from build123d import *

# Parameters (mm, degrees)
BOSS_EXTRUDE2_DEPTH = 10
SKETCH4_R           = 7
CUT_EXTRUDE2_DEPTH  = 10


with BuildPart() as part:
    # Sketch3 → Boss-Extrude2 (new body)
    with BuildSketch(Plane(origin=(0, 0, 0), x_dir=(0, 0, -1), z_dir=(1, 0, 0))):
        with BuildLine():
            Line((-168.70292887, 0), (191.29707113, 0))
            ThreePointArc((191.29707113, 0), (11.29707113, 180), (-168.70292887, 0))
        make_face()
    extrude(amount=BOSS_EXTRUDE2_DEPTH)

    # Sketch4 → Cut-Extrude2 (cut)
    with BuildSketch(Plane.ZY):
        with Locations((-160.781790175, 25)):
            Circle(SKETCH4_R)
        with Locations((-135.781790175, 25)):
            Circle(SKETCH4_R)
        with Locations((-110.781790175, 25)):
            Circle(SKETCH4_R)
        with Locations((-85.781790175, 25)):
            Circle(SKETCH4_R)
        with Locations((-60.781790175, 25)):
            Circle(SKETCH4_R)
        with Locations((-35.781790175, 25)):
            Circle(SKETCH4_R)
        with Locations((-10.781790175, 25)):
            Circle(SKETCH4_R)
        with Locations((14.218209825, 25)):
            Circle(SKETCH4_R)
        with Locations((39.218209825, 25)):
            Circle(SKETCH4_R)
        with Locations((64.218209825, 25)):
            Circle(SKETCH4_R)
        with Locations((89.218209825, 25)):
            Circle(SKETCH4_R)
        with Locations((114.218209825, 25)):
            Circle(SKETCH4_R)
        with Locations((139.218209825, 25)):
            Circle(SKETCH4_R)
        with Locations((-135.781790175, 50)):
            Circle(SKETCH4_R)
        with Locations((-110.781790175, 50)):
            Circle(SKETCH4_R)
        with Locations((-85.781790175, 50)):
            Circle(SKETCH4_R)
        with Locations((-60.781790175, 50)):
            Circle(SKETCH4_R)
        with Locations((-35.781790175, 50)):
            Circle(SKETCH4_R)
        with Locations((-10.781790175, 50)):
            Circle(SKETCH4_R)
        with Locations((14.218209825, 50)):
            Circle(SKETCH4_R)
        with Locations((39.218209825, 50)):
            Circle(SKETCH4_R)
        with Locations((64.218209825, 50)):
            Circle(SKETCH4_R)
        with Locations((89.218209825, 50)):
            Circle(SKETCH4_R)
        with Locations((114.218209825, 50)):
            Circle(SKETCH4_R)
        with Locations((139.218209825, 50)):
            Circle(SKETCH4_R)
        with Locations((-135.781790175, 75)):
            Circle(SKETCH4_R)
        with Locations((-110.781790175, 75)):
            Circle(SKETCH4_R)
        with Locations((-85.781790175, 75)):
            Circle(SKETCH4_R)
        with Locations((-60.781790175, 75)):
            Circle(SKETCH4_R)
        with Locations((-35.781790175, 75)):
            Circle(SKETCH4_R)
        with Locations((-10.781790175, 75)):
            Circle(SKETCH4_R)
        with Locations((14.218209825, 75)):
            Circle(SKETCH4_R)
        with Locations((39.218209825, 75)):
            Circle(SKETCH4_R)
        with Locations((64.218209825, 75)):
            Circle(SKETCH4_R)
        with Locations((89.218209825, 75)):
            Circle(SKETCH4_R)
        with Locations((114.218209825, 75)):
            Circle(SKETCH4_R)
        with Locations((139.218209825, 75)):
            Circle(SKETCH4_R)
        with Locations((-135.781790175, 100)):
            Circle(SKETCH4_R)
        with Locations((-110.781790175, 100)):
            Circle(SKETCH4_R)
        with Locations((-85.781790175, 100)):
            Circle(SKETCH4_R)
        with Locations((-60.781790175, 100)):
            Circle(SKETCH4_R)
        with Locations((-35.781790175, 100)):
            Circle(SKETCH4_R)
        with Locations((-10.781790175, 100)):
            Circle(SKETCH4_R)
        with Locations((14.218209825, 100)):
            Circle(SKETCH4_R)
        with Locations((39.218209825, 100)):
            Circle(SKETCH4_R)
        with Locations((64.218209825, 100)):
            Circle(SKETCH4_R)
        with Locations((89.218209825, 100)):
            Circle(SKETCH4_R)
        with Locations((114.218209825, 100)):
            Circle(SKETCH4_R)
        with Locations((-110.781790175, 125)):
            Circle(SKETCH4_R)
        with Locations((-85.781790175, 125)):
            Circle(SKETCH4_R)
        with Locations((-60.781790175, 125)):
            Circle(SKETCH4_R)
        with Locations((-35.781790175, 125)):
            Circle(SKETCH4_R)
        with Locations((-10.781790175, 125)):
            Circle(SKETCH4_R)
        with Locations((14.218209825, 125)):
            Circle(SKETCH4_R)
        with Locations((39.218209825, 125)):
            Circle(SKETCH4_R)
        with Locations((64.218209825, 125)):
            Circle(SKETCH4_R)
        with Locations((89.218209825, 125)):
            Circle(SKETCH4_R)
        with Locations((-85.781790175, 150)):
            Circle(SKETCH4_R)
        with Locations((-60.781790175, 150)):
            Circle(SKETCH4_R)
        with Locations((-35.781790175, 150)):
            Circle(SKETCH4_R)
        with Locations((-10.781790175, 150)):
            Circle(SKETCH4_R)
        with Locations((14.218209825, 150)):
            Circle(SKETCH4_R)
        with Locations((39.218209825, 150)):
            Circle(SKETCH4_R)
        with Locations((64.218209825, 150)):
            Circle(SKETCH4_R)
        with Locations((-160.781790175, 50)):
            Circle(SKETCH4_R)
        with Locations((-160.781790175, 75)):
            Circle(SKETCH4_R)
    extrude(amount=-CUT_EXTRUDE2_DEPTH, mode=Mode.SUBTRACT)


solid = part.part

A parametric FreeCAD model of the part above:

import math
import FreeCAD as App
import Part
import Sketcher
from FreeCAD import Vector

doc = App.newDocument("Part")
params = doc.addObject("Spreadsheet::Sheet", "Params")
for row, (alias, value) in enumerate([
    ("sketch1_radius", "180 mm"),
    ("pad1_length", "10 mm"),
    ("sketch2_diameter", "14 mm"),
    ("pocket1_length", "10 mm"),
], start=1):
    params.set(f"A{row}", alias)
    params.set(f"B{row}", "=" + value)
    params.setAlias(f"B{row}", alias)

body = doc.addObject("PartDesign::Body", "Body")

sketch1 = doc.addObject("Sketcher::SketchObject", "Sketch")
body.addObject(sketch1)
sketch1.AttachmentSupport = (doc.YZ_Plane, [""])
sketch1.MapMode = "FlatFace"
sketch1.addGeometry(Part.LineSegment(Vector(0, 169, 0), Vector(0, -191, 0)), False)
sketch1.addGeometry(Part.ArcOfCircle(Part.Circle(Vector(0, -11, 0), Vector(0, 0, 1), 180), math.radians(-90), math.radians(90)), False)
sketch1.addConstraint(Sketcher.Constraint("Coincident", 0, 1, 1, 2))
sketch1.addConstraint(Sketcher.Constraint("Coincident", 1, 1, 0, 2))
sketch1.addConstraint(Sketcher.Constraint("Vertical", 0))
sketch1.addConstraint(Sketcher.Constraint("PointOnObject", 1, 3, -2))
sketch1.addConstraint(Sketcher.Constraint("PointOnObject", 0, 1, -2))
sketch1.addConstraint(Sketcher.Constraint("Radius", 1, 180.0))
sketch1.addConstraint(Sketcher.Constraint("DistanceY", 1, 3, -1, 1, 11.297071))
sketch1.setExpression("Constraints[5]", "Params.sketch1_radius")
pad1 = doc.addObject("PartDesign::Pad", "Pad")
body.addObject(pad1)
pad1.Profile = sketch1
pad1.setExpression("Length", "Params.pad1_length")

sketch2 = doc.addObject("Sketcher::SketchObject", "Sketch001")
body.addObject(sketch2)
sketch2.AttachmentSupport = (doc.YZ_Plane, [""])
sketch2.MapMode = "FlatFace"
sketch2.addGeometry(Part.Circle(Vector(25, -161, 0), Vector(0, 0, 1), 7), False)
sketch2.addGeometry(Part.Circle(Vector(25, -136, 0), Vector(0, 0, 1), 7), False)
sketch2.addGeometry(Part.Circle(Vector(25, -111, 0), Vector(0, 0, 1), 7), False)
sketch2.addGeometry(Part.Circle(Vector(25, -86, 0), Vector(0, 0, 1), 7), False)
sketch2.addGeometry(Part.Circle(Vector(25, -61, 0), Vector(0, 0, 1), 7), False)
sketch2.addGeometry(Part.Circle(Vector(25, -36, 0), Vector(0, 0, 1), 7), False)
sketch2.addGeometry(Part.Circle(Vector(25, -11, 0), Vector(0, 0, 1), 7), False)
sketch2.addGeometry(Part.Circle(Vector(25, 14, 0), Vector(0, 0, 1), 7), False)
sketch2.addGeometry(Part.Circle(Vector(25, 39, 0), Vector(0, 0, 1), 7), False)
sketch2.addGeometry(Part.Circle(Vector(25, 64, 0), Vector(0, 0, 1), 7), False)
sketch2.addGeometry(Part.Circle(Vector(25, 89, 0), Vector(0, 0, 1), 7), False)
sketch2.addGeometry(Part.Circle(Vector(25, 114, 0), Vector(0, 0, 1), 7), False)
sketch2.addGeometry(Part.Circle(Vector(25, 139, 0), Vector(0, 0, 1), 7), False)
sketch2.addGeometry(Part.Circle(Vector(50, -136, 0), Vector(0, 0, 1), 7), False)
sketch2.addGeometry(Part.Circle(Vector(50, -111, 0), Vector(0, 0, 1), 7), False)
sketch2.addGeometry(Part.Circle(Vector(50, -86, 0), Vector(0, 0, 1), 7), False)
sketch2.addGeometry(Part.Circle(Vector(50, -61, 0), Vector(0, 0, 1), 7), False)
sketch2.addGeometry(Part.Circle(Vector(50, -36, 0), Vector(0, 0, 1), 7), False)
sketch2.addGeometry(Part.Circle(Vector(50, -11, 0), Vector(0, 0, 1), 7), False)
sketch2.addGeometry(Part.Circle(Vector(50, 14, 0), Vector(0, 0, 1), 7), False)
sketch2.addGeometry(Part.Circle(Vector(50, 39, 0), Vector(0, 0, 1), 7), False)
sketch2.addGeometry(Part.Circle(Vector(50, 64, 0), Vector(0, 0, 1), 7), False)
sketch2.addGeometry(Part.Circle(Vector(50, 89, 0), Vector(0, 0, 1), 7), False)
sketch2.addGeometry(Part.Circle(Vector(50, 114, 0), Vector(0, 0, 1), 7), False)
sketch2.addGeometry(Part.Circle(Vector(50, 139, 0), Vector(0, 0, 1), 7), False)
sketch2.addGeometry(Part.Circle(Vector(75, -136, 0), Vector(0, 0, 1), 7), False)
sketch2.addGeometry(Part.Circle(Vector(75, -111, 0), Vector(0, 0, 1), 7), False)
sketch2.addGeometry(Part.Circle(Vector(75, -86, 0), Vector(0, 0, 1), 7), False)
sketch2.addGeometry(Part.Circle(Vector(75, -61, 0), Vector(0, 0, 1), 7), False)
sketch2.addGeometry(Part.Circle(Vector(75, -36, 0), Vector(0, 0, 1), 7), False)
sketch2.addGeometry(Part.Circle(Vector(75, -11, 0), Vector(0, 0, 1), 7), False)
sketch2.addGeometry(Part.Circle(Vector(75, 14, 0), Vector(0, 0, 1), 7), False)
sketch2.addGeometry(Part.Circle(Vector(75, 39, 0), Vector(0, 0, 1), 7), False)
sketch2.addGeometry(Part.Circle(Vector(75, 64, 0), Vector(0, 0, 1), 7), False)
sketch2.addGeometry(Part.Circle(Vector(75, 89, 0), Vector(0, 0, 1), 7), False)
sketch2.addGeometry(Part.Circle(Vector(75, 114, 0), Vector(0, 0, 1), 7), False)
sketch2.addGeometry(Part.Circle(Vector(75, 139, 0), Vector(0, 0, 1), 7), False)
sketch2.addGeometry(Part.Circle(Vector(100, -136, 0), Vector(0, 0, 1), 7), False)
sketch2.addGeometry(Part.Circle(Vector(100, -111, 0), Vector(0, 0, 1), 7), False)
sketch2.addGeometry(Part.Circle(Vector(100, -86, 0), Vector(0, 0, 1), 7), False)
sketch2.addGeometry(Part.Circle(Vector(100, -61, 0), Vector(0, 0, 1), 7), False)
sketch2.addGeometry(Part.Circle(Vector(100, -36, 0), Vector(0, 0, 1), 7), False)
sketch2.addGeometry(Part.Circle(Vector(100, -11, 0), Vector(0, 0, 1), 7), False)
sketch2.addGeometry(Part.Circle(Vector(100, 14, 0), Vector(0, 0, 1), 7), False)
sketch2.addGeometry(Part.Circle(Vector(100, 39, 0), Vector(0, 0, 1), 7), False)
sketch2.addGeometry(Part.Circle(Vector(100, 64, 0), Vector(0, 0, 1), 7), False)
sketch2.addGeometry(Part.Circle(Vector(100, 89, 0), Vector(0, 0, 1), 7), False)
sketch2.addGeometry(Part.Circle(Vector(100, 114, 0), Vector(0, 0, 1), 7), False)
sketch2.addGeometry(Part.Circle(Vector(125, -111, 0), Vector(0, 0, 1), 7), False)
sketch2.addGeometry(Part.Circle(Vector(125, -86, 0), Vector(0, 0, 1), 7), False)
sketch2.addGeometry(Part.Circle(Vector(125, -61, 0), Vector(0, 0, 1), 7), False)
sketch2.addGeometry(Part.Circle(Vector(125, -36, 0), Vector(0, 0, 1), 7), False)
sketch2.addGeometry(Part.Circle(Vector(125, -11, 0), Vector(0, 0, 1), 7), False)
sketch2.addGeometry(Part.Circle(Vector(125, 14, 0), Vector(0, 0, 1), 7), False)
sketch2.addGeometry(Part.Circle(Vector(125, 39, 0), Vector(0, 0, 1), 7), False)
sketch2.addGeometry(Part.Circle(Vector(125, 64, 0), Vector(0, 0, 1), 7), False)
sketch2.addGeometry(Part.Circle(Vector(125, 89, 0), Vector(0, 0, 1), 7), False)
sketch2.addGeometry(Part.Circle(Vector(150, -86, 0), Vector(0, 0, 1), 7), False)
sketch2.addGeometry(Part.Circle(Vector(150, -61, 0), Vector(0, 0, 1), 7), False)
sketch2.addGeometry(Part.Circle(Vector(150, -36, 0), Vector(0, 0, 1), 7), False)
sketch2.addGeometry(Part.Circle(Vector(150, -11, 0), Vector(0, 0, 1), 7), False)
sketch2.addGeometry(Part.Circle(Vector(150, 14, 0), Vector(0, 0, 1), 7), False)
sketch2.addGeometry(Part.Circle(Vector(150, 39, 0), Vector(0, 0, 1), 7), False)
sketch2.addGeometry(Part.Circle(Vector(150, 64, 0), Vector(0, 0, 1), 7), False)
sketch2.addGeometry(Part.Circle(Vector(50, -161, 0), Vector(0, 0, 1), 7), False)
sketch2.addGeometry(Part.Circle(Vector(75, -161, 0), Vector(0, 0, 1), 7), False)
sketch2.addConstraint(Sketcher.Constraint("Equal", 0, 1))
sketch2.addConstraint(Sketcher.Constraint("Equal", 1, 2))
sketch2.addConstraint(Sketcher.Constraint("Equal", 2, 3))
sketch2.addConstraint(Sketcher.Constraint("Equal", 3, 4))
sketch2.addConstraint(Sketcher.Constraint("Equal", 4, 5))
sketch2.addConstraint(Sketcher.Constraint("Equal", 5, 6))
sketch2.addConstraint(Sketcher.Constraint("Equal", 6, 7))
sketch2.addConstraint(Sketcher.Constraint("Equal", 7, 8))
sketch2.addConstraint(Sketcher.Constraint("Equal", 8, 9))
sketch2.addConstraint(Sketcher.Constraint("Equal", 9, 10))
sketch2.addConstraint(Sketcher.Constraint("Equal", 10, 11))
sketch2.addConstraint(Sketcher.Constraint("Equal", 11, 12))
sketch2.addConstraint(Sketcher.Constraint("Equal", 12, 13))
sketch2.addConstraint(Sketcher.Constraint("Equal", 13, 14))
sketch2.addConstraint(Sketcher.Constraint("Equal", 14, 15))
sketch2.addConstraint(Sketcher.Constraint("Equal", 15, 16))
sketch2.addConstraint(Sketcher.Constraint("Equal", 16, 17))
sketch2.addConstraint(Sketcher.Constraint("Equal", 17, 18))
sketch2.addConstraint(Sketcher.Constraint("Equal", 18, 19))
sketch2.addConstraint(Sketcher.Constraint("Equal", 19, 20))
sketch2.addConstraint(Sketcher.Constraint("Equal", 20, 21))
sketch2.addConstraint(Sketcher.Constraint("Equal", 21, 22))
sketch2.addConstraint(Sketcher.Constraint("Equal", 22, 23))
sketch2.addConstraint(Sketcher.Constraint("Equal", 23, 24))
sketch2.addConstraint(Sketcher.Constraint("Equal", 24, 25))
sketch2.addConstraint(Sketcher.Constraint("Equal", 25, 26))
sketch2.addConstraint(Sketcher.Constraint("Equal", 26, 27))
sketch2.addConstraint(Sketcher.Constraint("Equal", 27, 28))
sketch2.addConstraint(Sketcher.Constraint("Equal", 28, 29))
sketch2.addConstraint(Sketcher.Constraint("Equal", 29, 30))
sketch2.addConstraint(Sketcher.Constraint("Equal", 30, 31))
sketch2.addConstraint(Sketcher.Constraint("Equal", 31, 32))
sketch2.addConstraint(Sketcher.Constraint("Equal", 32, 33))
sketch2.addConstraint(Sketcher.Constraint("Equal", 33, 34))
sketch2.addConstraint(Sketcher.Constraint("Equal", 34, 35))
sketch2.addConstraint(Sketcher.Constraint("Equal", 35, 36))
sketch2.addConstraint(Sketcher.Constraint("Equal", 36, 37))
sketch2.addConstraint(Sketcher.Constraint("Equal", 37, 38))
sketch2.addConstraint(Sketcher.Constraint("Equal", 38, 39))
sketch2.addConstraint(Sketcher.Constraint("Equal", 39, 40))
sketch2.addConstraint(Sketcher.Constraint("Equal", 40, 41))
sketch2.addConstraint(Sketcher.Constraint("Equal", 41, 42))
sketch2.addConstraint(Sketcher.Constraint("Equal", 42, 43))
sketch2.addConstraint(Sketcher.Constraint("Equal", 43, 44))
sketch2.addConstraint(Sketcher.Constraint("Equal", 44, 45))
sketch2.addConstraint(Sketcher.Constraint("Equal", 45, 46))
sketch2.addConstraint(Sketcher.Constraint("Equal", 46, 47))
sketch2.addConstraint(Sketcher.Constraint("Equal", 47, 48))
sketch2.addConstraint(Sketcher.Constraint("Equal", 48, 49))
sketch2.addConstraint(Sketcher.Constraint("Equal", 49, 50))
sketch2.addConstraint(Sketcher.Constraint("Equal", 50, 51))
sketch2.addConstraint(Sketcher.Constraint("Equal", 51, 52))
sketch2.addConstraint(Sketcher.Constraint("Equal", 52, 53))
sketch2.addConstraint(Sketcher.Constraint("Equal", 53, 54))
sketch2.addConstraint(Sketcher.Constraint("Equal", 54, 55))
sketch2.addConstraint(Sketcher.Constraint("Equal", 55, 56))
sketch2.addConstraint(Sketcher.Constraint("Equal", 56, 57))
sketch2.addConstraint(Sketcher.Constraint("Equal", 57, 58))
sketch2.addConstraint(Sketcher.Constraint("Equal", 58, 59))
sketch2.addConstraint(Sketcher.Constraint("Equal", 59, 60))
sketch2.addConstraint(Sketcher.Constraint("Equal", 60, 61))
sketch2.addConstraint(Sketcher.Constraint("Equal", 61, 62))
sketch2.addConstraint(Sketcher.Constraint("Equal", 62, 63))
sketch2.addConstraint(Sketcher.Constraint("Equal", 63, 64))
sketch2.addConstraint(Sketcher.Constraint("Equal", 64, 65))
sketch2.addConstraint(Sketcher.Constraint("Horizontal", 1, 3, 13, 3))
sketch2.addConstraint(Sketcher.Constraint("Horizontal", 2, 3, 14, 3))
sketch2.addConstraint(Sketcher.Constraint("Horizontal", 3, 3, 15, 3))
sketch2.addConstraint(Sketcher.Constraint("Horizontal", 4, 3, 16, 3))
sketch2.addConstraint(Sketcher.Constraint("Horizontal", 5, 3, 17, 3))
sketch2.addConstraint(Sketcher.Constraint("Horizontal", 6, 3, 18, 3))
sketch2.addConstraint(Sketcher.Constraint("Horizontal", 7, 3, 19, 3))
sketch2.addConstraint(Sketcher.Constraint("Horizontal", 8, 3, 20, 3))
sketch2.addConstraint(Sketcher.Constraint("Horizontal", 9, 3, 21, 3))
sketch2.addConstraint(Sketcher.Constraint("Horizontal", 10, 3, 22, 3))
sketch2.addConstraint(Sketcher.Constraint("Horizontal", 11, 3, 23, 3))
sketch2.addConstraint(Sketcher.Constraint("Horizontal", 12, 3, 24, 3))
sketch2.addConstraint(Sketcher.Constraint("Horizontal", 13, 3, 25, 3))
sketch2.addConstraint(Sketcher.Constraint("Horizontal", 14, 3, 26, 3))
sketch2.addConstraint(Sketcher.Constraint("Horizontal", 15, 3, 27, 3))
sketch2.addConstraint(Sketcher.Constraint("Horizontal", 16, 3, 28, 3))
sketch2.addConstraint(Sketcher.Constraint("Horizontal", 17, 3, 29, 3))
sketch2.addConstraint(Sketcher.Constraint("Horizontal", 18, 3, 30, 3))
sketch2.addConstraint(Sketcher.Constraint("Horizontal", 19, 3, 31, 3))
sketch2.addConstraint(Sketcher.Constraint("Horizontal", 20, 3, 32, 3))
sketch2.addConstraint(Sketcher.Constraint("Horizontal", 21, 3, 33, 3))
sketch2.addConstraint(Sketcher.Constraint("Horizontal", 22, 3, 34, 3))
sketch2.addConstraint(Sketcher.Constraint("Horizontal", 23, 3, 35, 3))
sketch2.addConstraint(Sketcher.Constraint("Horizontal", 24, 3, 36, 3))
sketch2.addConstraint(Sketcher.Constraint("Horizontal", 25, 3, 37, 3))
sketch2.addConstraint(Sketcher.Constraint("Horizontal", 26, 3, 38, 3))
sketch2.addConstraint(Sketcher.Constraint("Horizontal", 27, 3, 39, 3))
sketch2.addConstraint(Sketcher.Constraint("Horizontal", 28, 3, 40, 3))
sketch2.addConstraint(Sketcher.Constraint("Horizontal", 29, 3, 41, 3))
sketch2.addConstraint(Sketcher.Constraint("Horizontal", 30, 3, 42, 3))
sketch2.addConstraint(Sketcher.Constraint("Horizontal", 31, 3, 43, 3))
sketch2.addConstraint(Sketcher.Constraint("Horizontal", 32, 3, 44, 3))
sketch2.addConstraint(Sketcher.Constraint("Horizontal", 33, 3, 45, 3))
sketch2.addConstraint(Sketcher.Constraint("Horizontal", 34, 3, 46, 3))
sketch2.addConstraint(Sketcher.Constraint("Horizontal", 35, 3, 47, 3))
sketch2.addConstraint(Sketcher.Constraint("Horizontal", 38, 3, 48, 3))
sketch2.addConstraint(Sketcher.Constraint("Horizontal", 39, 3, 49, 3))
sketch2.addConstraint(Sketcher.Constraint("Horizontal", 40, 3, 50, 3))
sketch2.addConstraint(Sketcher.Constraint("Horizontal", 41, 3, 51, 3))
sketch2.addConstraint(Sketcher.Constraint("Horizontal", 42, 3, 52, 3))
sketch2.addConstraint(Sketcher.Constraint("Horizontal", 43, 3, 53, 3))
sketch2.addConstraint(Sketcher.Constraint("Horizontal", 44, 3, 54, 3))
sketch2.addConstraint(Sketcher.Constraint("Horizontal", 45, 3, 55, 3))
sketch2.addConstraint(Sketcher.Constraint("Horizontal", 46, 3, 56, 3))
sketch2.addConstraint(Sketcher.Constraint("Horizontal", 49, 3, 57, 3))
sketch2.addConstraint(Sketcher.Constraint("Horizontal", 50, 3, 58, 3))
sketch2.addConstraint(Sketcher.Constraint("Horizontal", 51, 3, 59, 3))
sketch2.addConstraint(Sketcher.Constraint("Horizontal", 52, 3, 60, 3))
sketch2.addConstraint(Sketcher.Constraint("Horizontal", 53, 3, 61, 3))
sketch2.addConstraint(Sketcher.Constraint("Horizontal", 54, 3, 62, 3))
sketch2.addConstraint(Sketcher.Constraint("Horizontal", 55, 3, 63, 3))
sketch2.addConstraint(Sketcher.Constraint("Horizontal", 0, 3, 64, 3))
sketch2.addConstraint(Sketcher.Constraint("Horizontal", 64, 3, 65, 3))
sketch2.addConstraint(Sketcher.Constraint("Vertical", 0, 3, 1, 3))
sketch2.addConstraint(Sketcher.Constraint("Vertical", 1, 3, 2, 3))
sketch2.addConstraint(Sketcher.Constraint("Vertical", 2, 3, 3, 3))
sketch2.addConstraint(Sketcher.Constraint("Vertical", 3, 3, 4, 3))
sketch2.addConstraint(Sketcher.Constraint("Vertical", 4, 3, 5, 3))
sketch2.addConstraint(Sketcher.Constraint("Vertical", 5, 3, 6, 3))
sketch2.addConstraint(Sketcher.Constraint("Vertical", 6, 3, 7, 3))
sketch2.addConstraint(Sketcher.Constraint("Vertical", 7, 3, 8, 3))
sketch2.addConstraint(Sketcher.Constraint("Vertical", 8, 3, 9, 3))
sketch2.addConstraint(Sketcher.Constraint("Vertical", 9, 3, 10, 3))
sketch2.addConstraint(Sketcher.Constraint("Vertical", 10, 3, 11, 3))
sketch2.addConstraint(Sketcher.Constraint("Vertical", 11, 3, 12, 3))
sketch2.addConstraint(Sketcher.Constraint("Vertical", 13, 3, 14, 3))
sketch2.addConstraint(Sketcher.Constraint("Vertical", 14, 3, 15, 3))
sketch2.addConstraint(Sketcher.Constraint("Vertical", 15, 3, 16, 3))
sketch2.addConstraint(Sketcher.Constraint("Vertical", 16, 3, 17, 3))
sketch2.addConstraint(Sketcher.Constraint("Vertical", 17, 3, 18, 3))
sketch2.addConstraint(Sketcher.Constraint("Vertical", 18, 3, 19, 3))
sketch2.addConstraint(Sketcher.Constraint("Vertical", 19, 3, 20, 3))
sketch2.addConstraint(Sketcher.Constraint("Vertical", 20, 3, 21, 3))
sketch2.addConstraint(Sketcher.Constraint("Vertical", 21, 3, 22, 3))
sketch2.addConstraint(Sketcher.Constraint("Vertical", 22, 3, 23, 3))
sketch2.addConstraint(Sketcher.Constraint("Vertical", 23, 3, 24, 3))
sketch2.addConstraint(Sketcher.Constraint("Vertical", 25, 3, 26, 3))
sketch2.addConstraint(Sketcher.Constraint("Vertical", 26, 3, 27, 3))
sketch2.addConstraint(Sketcher.Constraint("Vertical", 27, 3, 28, 3))
sketch2.addConstraint(Sketcher.Constraint("Vertical", 28, 3, 29, 3))
sketch2.addConstraint(Sketcher.Constraint("Vertical", 29, 3, 30, 3))
sketch2.addConstraint(Sketcher.Constraint("Vertical", 30, 3, 31, 3))
sketch2.addConstraint(Sketcher.Constraint("Vertical", 31, 3, 32, 3))
sketch2.addConstraint(Sketcher.Constraint("Vertical", 32, 3, 33, 3))
sketch2.addConstraint(Sketcher.Constraint("Vertical", 33, 3, 34, 3))
sketch2.addConstraint(Sketcher.Constraint("Vertical", 34, 3, 35, 3))
sketch2.addConstraint(Sketcher.Constraint("Vertical", 35, 3, 36, 3))
sketch2.addConstraint(Sketcher.Constraint("Vertical", 37, 3, 38, 3))
sketch2.addConstraint(Sketcher.Constraint("Vertical", 38, 3, 39, 3))
sketch2.addConstraint(Sketcher.Constraint("Vertical", 39, 3, 40, 3))
sketch2.addConstraint(Sketcher.Constraint("Vertical", 40, 3, 41, 3))
sketch2.addConstraint(Sketcher.Constraint("Vertical", 41, 3, 42, 3))
sketch2.addConstraint(Sketcher.Constraint("Vertical", 42, 3, 43, 3))
sketch2.addConstraint(Sketcher.Constraint("Vertical", 43, 3, 44, 3))
sketch2.addConstraint(Sketcher.Constraint("Vertical", 44, 3, 45, 3))
sketch2.addConstraint(Sketcher.Constraint("Vertical", 45, 3, 46, 3))
sketch2.addConstraint(Sketcher.Constraint("Vertical", 46, 3, 47, 3))
sketch2.addConstraint(Sketcher.Constraint("Vertical", 48, 3, 49, 3))
sketch2.addConstraint(Sketcher.Constraint("Vertical", 49, 3, 50, 3))
sketch2.addConstraint(Sketcher.Constraint("Vertical", 50, 3, 51, 3))
sketch2.addConstraint(Sketcher.Constraint("Vertical", 51, 3, 52, 3))
sketch2.addConstraint(Sketcher.Constraint("Vertical", 52, 3, 53, 3))
sketch2.addConstraint(Sketcher.Constraint("Vertical", 53, 3, 54, 3))
sketch2.addConstraint(Sketcher.Constraint("Vertical", 54, 3, 55, 3))
sketch2.addConstraint(Sketcher.Constraint("Vertical", 55, 3, 56, 3))
sketch2.addConstraint(Sketcher.Constraint("Vertical", 57, 3, 58, 3))
sketch2.addConstraint(Sketcher.Constraint("Vertical", 58, 3, 59, 3))
sketch2.addConstraint(Sketcher.Constraint("Vertical", 59, 3, 60, 3))
sketch2.addConstraint(Sketcher.Constraint("Vertical", 60, 3, 61, 3))
sketch2.addConstraint(Sketcher.Constraint("Vertical", 61, 3, 62, 3))
sketch2.addConstraint(Sketcher.Constraint("Vertical", 62, 3, 63, 3))
sketch2.addConstraint(Sketcher.Constraint("Vertical", 24, 3, 64, 3))
sketch2.addConstraint(Sketcher.Constraint("Vertical", 36, 3, 65, 3))
sketch2.addConstraint(Sketcher.Constraint("Diameter", 0, 14.0))
sketch2.addConstraint(Sketcher.Constraint("DistanceX", -1, 1, 0, 3, 25.0))
sketch2.addConstraint(Sketcher.Constraint("DistanceX", -1, 1, 13, 3, 50.0))
sketch2.addConstraint(Sketcher.Constraint("DistanceX", -1, 1, 25, 3, 75.0))
sketch2.addConstraint(Sketcher.Constraint("DistanceX", -1, 1, 37, 3, 100.0))
sketch2.addConstraint(Sketcher.Constraint("DistanceX", -1, 1, 48, 3, 125.0))
sketch2.addConstraint(Sketcher.Constraint("DistanceX", -1, 1, 57, 3, 150.0))
sketch2.addConstraint(Sketcher.Constraint("DistanceY", 0, 3, -1, 1, 160.78179))
sketch2.addConstraint(Sketcher.Constraint("DistanceY", 1, 3, -1, 1, 135.78179))
sketch2.addConstraint(Sketcher.Constraint("DistanceY", 2, 3, -1, 1, 110.78179))
sketch2.addConstraint(Sketcher.Constraint("DistanceY", 3, 3, -1, 1, 85.78179))
sketch2.addConstraint(Sketcher.Constraint("DistanceY", 4, 3, -1, 1, 60.78179))
sketch2.addConstraint(Sketcher.Constraint("DistanceY", 5, 3, -1, 1, 35.78179))
sketch2.addConstraint(Sketcher.Constraint("DistanceY", 6, 3, -1, 1, 10.78179))
sketch2.addConstraint(Sketcher.Constraint("DistanceY", -1, 1, 7, 3, 14.21821))
sketch2.addConstraint(Sketcher.Constraint("DistanceY", -1, 1, 8, 3, 39.21821))
sketch2.addConstraint(Sketcher.Constraint("DistanceY", -1, 1, 9, 3, 64.21821))
sketch2.addConstraint(Sketcher.Constraint("DistanceY", -1, 1, 10, 3, 89.21821))
sketch2.addConstraint(Sketcher.Constraint("DistanceY", -1, 1, 11, 3, 114.21821))
sketch2.addConstraint(Sketcher.Constraint("DistanceY", -1, 1, 12, 3, 139.21821))
sketch2.setExpression("Constraints[178]", "Params.sketch2_diameter")
pocket1 = doc.addObject("PartDesign::Pocket", "Pocket")
body.addObject(pocket1)
pocket1.Profile = sketch2
pocket1.setExpression("Length", "Params.pocket1_length")
pocket1.Reversed = True

doc.recompute()
